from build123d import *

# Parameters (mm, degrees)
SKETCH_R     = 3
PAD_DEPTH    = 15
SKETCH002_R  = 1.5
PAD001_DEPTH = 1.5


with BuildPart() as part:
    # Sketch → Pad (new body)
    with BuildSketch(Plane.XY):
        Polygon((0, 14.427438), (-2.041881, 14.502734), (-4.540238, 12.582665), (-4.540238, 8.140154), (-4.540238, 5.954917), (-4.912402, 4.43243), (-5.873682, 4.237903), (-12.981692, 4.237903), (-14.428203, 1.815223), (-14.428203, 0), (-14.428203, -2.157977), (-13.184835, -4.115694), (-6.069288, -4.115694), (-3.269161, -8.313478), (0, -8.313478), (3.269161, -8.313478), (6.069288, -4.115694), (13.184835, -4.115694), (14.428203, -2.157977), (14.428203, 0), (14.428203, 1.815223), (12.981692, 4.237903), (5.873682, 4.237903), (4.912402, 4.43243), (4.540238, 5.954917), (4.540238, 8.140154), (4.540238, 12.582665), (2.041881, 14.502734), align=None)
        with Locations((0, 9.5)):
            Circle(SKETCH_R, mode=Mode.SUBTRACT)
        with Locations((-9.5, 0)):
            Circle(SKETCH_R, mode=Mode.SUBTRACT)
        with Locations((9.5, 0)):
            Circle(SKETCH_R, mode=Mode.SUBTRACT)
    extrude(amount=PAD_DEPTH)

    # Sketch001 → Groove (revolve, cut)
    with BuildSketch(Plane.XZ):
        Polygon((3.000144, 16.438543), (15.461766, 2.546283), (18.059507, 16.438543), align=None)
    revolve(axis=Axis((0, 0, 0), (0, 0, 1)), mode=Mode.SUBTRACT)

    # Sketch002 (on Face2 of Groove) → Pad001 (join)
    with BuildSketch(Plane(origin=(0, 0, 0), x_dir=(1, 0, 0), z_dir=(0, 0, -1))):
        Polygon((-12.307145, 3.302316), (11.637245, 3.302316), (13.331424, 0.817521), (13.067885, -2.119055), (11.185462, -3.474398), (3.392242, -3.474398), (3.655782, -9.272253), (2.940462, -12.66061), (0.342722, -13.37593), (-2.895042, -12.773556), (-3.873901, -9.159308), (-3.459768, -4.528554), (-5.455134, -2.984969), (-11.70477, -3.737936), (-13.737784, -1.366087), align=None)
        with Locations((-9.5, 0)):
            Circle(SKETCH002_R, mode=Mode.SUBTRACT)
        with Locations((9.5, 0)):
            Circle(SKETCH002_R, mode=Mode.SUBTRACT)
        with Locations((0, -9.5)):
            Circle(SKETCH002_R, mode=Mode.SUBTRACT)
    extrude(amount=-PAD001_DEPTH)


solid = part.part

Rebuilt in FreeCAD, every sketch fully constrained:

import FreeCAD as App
import Part
import Sketcher

V = App.Vector
Q = App.Units.Quantity


def add_polygon(sketch, points):
    """Adds a closed chain of lines whose ends are joined by coincident constraints."""
    first, n = sketch.GeometryCount, len(points)
    for a, b in zip(points, points[1:] + points[:1]):
        sketch.addGeometry(Part.LineSegment(App.Vector(*a, 0), App.Vector(*b, 0)), False)
    for i in range(n):
        sketch.addConstraint(Sketcher.Constraint("Coincident", first + i, 2, first + (i + 1) % n, 1))

doc = App.newDocument("Part")
params = doc.addObject("Spreadsheet::Sheet", "Params")
for row, (alias, value) in enumerate([
    ("sketch1_diameter", "6 mm"),
    ("pad1_length", "15 mm"),
    ("groove_angle", "360 deg"),
    ("sketch3_diameter", "3 mm"),
    ("pad2_length", "1.5 mm"),
], start=1):
    params.set(f"A{row}", alias)
    params.set(f"B{row}", "=" + value)
    params.setAlias(f"B{row}", alias)

body = doc.addObject("PartDesign::Body", "Body")

sketch1 = doc.addObject("Sketcher::SketchObject", "Sketch")
body.addObject(sketch1)
sketch1.AttachmentSupport = (doc.XY_Plane, [""])
sketch1.MapMode = "FlatFace"
add_polygon(sketch1, [(0, 14.4), (-2, 14.5), (-4.5, 12.6), (-4.5, 6), (-4.9, 4.4), (-5.9, 4.2), (-13, 4.2), (-14.4, 1.8), (-14.4, -2.2), (-13.2, -4.1), (-6.1, -4.1), (-3.3, -8.3), (3.3, -8.3), (6.1, -4.1), (13.2, -4.1), (14.4, -2.2), (14.4, 1.8), (13, 4.2), (5.9, 4.2), (4.9, 4.4), (4.5, 6), (4.5, 12.6), (2, 14.5)])
sketch1.addGeometry(Part.Circle(V(-9.5, 0, 0), V(0, 0, 1), 3), False)
sketch1.addGeometry(Part.Circle(V(9.5, 0, 0), V(0, 0, 1), 3), False)
sketch1.addGeometry(Part.Circle(V(0, 9.5, 0), V(0, 0, 1), 3), False)
sketch1.addConstraint([
    Sketcher.Constraint("Vertical", 2),
    Sketcher.Constraint("Horizontal", 5),
    Sketcher.Constraint("Vertical", 7),
    Sketcher.Constraint("Horizontal", 9),
    Sketcher.Constraint("Horizontal", 11),
    Sketcher.Constraint("Horizontal", 13),
    Sketcher.Constraint("Vertical", 15),
    Sketcher.Constraint("Horizontal", 17),
    Sketcher.Constraint("Vertical", 20),
    Sketcher.Constraint("Equal", 23, 24),
    Sketcher.Constraint("Equal", 24, 25),
    Sketcher.Constraint("Symmetric", 23, 3, 24, 3, -1, 1),
    Sketcher.Constraint("Symmetric", 9, 2, 12, 2, -2),
    Sketcher.Constraint("Symmetric", 7, 2, 14, 2, -2),
    Sketcher.Constraint("Symmetric", 5, 2, 16, 2, -2),
    Sketcher.Constraint("Symmetric", 3, 2, 18, 2, -2),
    Sketcher.Constraint("Symmetric", 2, 2, 19, 2, -2),
    Sketcher.Constraint("Symmetric", 0, 2, 21, 2, -2),
    Sketcher.Constraint("PointOnObject", 23, 3, -1),
    Sketcher.Constraint("PointOnObject", 25, 3, -2),
    Sketcher.Constraint("PointOnObject", 22, 2, -2),
    Sketcher.Constraint("Horizontal", 6, 2, 15, 2),
    Sketcher.Constraint("Horizontal", 1, 2, 20, 2),
    Sketcher.Constraint("Equal", 9, 13),
    Sketcher.Constraint("Equal", 5, 17),
    Sketcher.Constraint("Equal", 10, 12),
    Sketcher.Constraint("Diameter", 23, Q("6 mm")),
    Sketcher.Constraint("DistanceX", 23, 3, 24, 3, Q("19 mm")),
    Sketcher.Constraint("DistanceY", -1, 1, 25, 3, Q("9.5 mm")),
    Sketcher.Constraint("Distance", 10, Q("5.045999 mm")),
    Sketcher.Constraint("DistanceY", 7, 2, 7, 1, Q("3.9732 mm")),
    Sketcher.Constraint("DistanceX", 5, 2, 5, 1, Q("7.10801 mm")),
    Sketcher.Constraint("DistanceY", 2, 2, 2, 1, Q("6.627748 mm")),
    Sketcher.Constraint("DistanceX", 6, 2, 3, 2, Q("9.515801 mm")),
    Sketcher.Constraint("DistanceY", 10, 2, 7, 2, Q("6.155501 mm")),
    Sketcher.Constraint("Distance", 0, Q("2.043269 mm")),
    Sketcher.Constraint("Distance", 6, Q("2.821661 mm")),
    Sketcher.Constraint("DistanceX", 9, 1, 9, 2, Q("7.115547 mm")),
    Sketcher.Constraint("DistanceX", 11, 1, 11, 2, Q("6.538322 mm")),
    Sketcher.Constraint("DistanceX", 0, 2, -1, 1, Q("2.041881 mm")),
    Sketcher.Constraint("DistanceX", 1, 2, -1, 1, Q("4.540238 mm")),
    Sketcher.Constraint("DistanceY", -1, 1, 3, 2, Q("4.43243 mm")),
    Sketcher.Constraint("DistanceX", 4, 2, -1, 1, Q("5.873682 mm")),
    Sketcher.Constraint("DistanceX", 9, 2, -1, 1, Q("6.069288 mm")),
    Sketcher.Constraint("DistanceY", 1, 2, 0, 2, Q("1.920069 mm")),
    Sketcher.Constraint("DistanceX", 3, 2, 0, 2, Q("2.870521 mm")),
    Sketcher.Constraint("DistanceY", 4, 2, 1, 2, Q("8.344762 mm")),
    Sketcher.Constraint("DistanceY", 25, 3, 22, 2, Q("4.927438 mm")),
])
sketch1.setExpression("Constraints[49]", "Params.sketch1_diameter")
pad1 = doc.addObject("PartDesign::Pad", "Pad")
body.addObject(pad1)
pad1.Profile = sketch1
pad1.setExpression("Length", "Params.pad1_length")

sketch2 = doc.addObject("Sketcher::SketchObject", "Sketch001")
body.addObject(sketch2)
sketch2.AttachmentSupport = (doc.XZ_Plane, [""])
sketch2.MapMode = "FlatFace"
add_polygon(sketch2, [(3, 16), (15, 3), (18, 16)])
sketch2.addConstraint([
    Sketcher.Constraint("Horizontal", 2),
    Sketcher.Constraint("Distance", 1, Q("14.133052 mm")),
    Sketcher.Constraint("DistanceX", 2, 2, 2, 1, Q("15.059363 mm")),
    Sketcher.Constraint("DistanceX", 0, 2, 1, 2, Q("2.597741 mm")),
    Sketcher.Constraint("DistanceX", -1, 1, 0, 2, Q("15.461766 mm")),
    Sketcher.Constraint("DistanceY", -1, 1, 0, 2, Q("2.546283 mm")),
])
groove = doc.addObject("PartDesign::Groove", "Groove")
body.addObject(groove)
groove.Profile = sketch2
groove.ReferenceAxis = (sketch2, ["V_Axis"])
groove.setExpression("Angle", "Params.groove_angle")

sketch3 = doc.addObject("Sketcher::SketchObject", "Sketch002")
body.addObject(sketch3)
sketch3.AttachmentSupport = (doc.XY_Plane, [""])
sketch3.MapMode = "FlatFace"
add_polygon(sketch3, [(11.6, -3.3), (-12.3, -3.3), (-13.7, 1.4), (-11.7, 3.7), (-5.5, 3), (-3.5, 4.5), (-3.9, 9.2), (-2.9, 12.8), (0.3, 13.4), (2.9, 12.7), (3.7, 9.3), (3.4, 3.5), (11.2, 3.5), (13.1, 2.1), (13.3, -0.8)])
sketch3.addGeometry(Part.Circle(V(0, 9.5, 0), V(0, 0, 1), 1.5), False)
sketch3.addGeometry(Part.Circle(V(9.5, 0, 0), V(0, 0, 1), 1.5), False)
sketch3.addGeometry(Part.Circle(V(-9.5, 0, 0), V(0, 0, 1), 1.5), False)
sketch3.addConstraint([
    Sketcher.Constraint("Horizontal", 0),
    Sketcher.Constraint("Horizontal", 11),
    Sketcher.Constraint("Equal", 15, 16),
    Sketcher.Constraint("Equal", 16, 17),
    Sketcher.Constraint("Symmetric", 16, 3, 17, 3, -1, 1),
    Sketcher.Constraint("PointOnObject", 15, 3, -2),
    Sketcher.Constraint("PointOnObject", 16, 3, -1),
    Sketcher.Constraint("Diameter", 15, Q("3 mm")),
    Sketcher.Constraint("DistanceX", 17, 3, 16, 3, Q("19 mm")),
    Sketcher.Constraint("DistanceY", -1, 1, 15, 3, Q("9.5 mm")),
    Sketcher.Constraint("Angle", 3, Q("-6.869982 deg")),
    Sketcher.Constraint("DistanceX", 8, 2, 11, 2, Q("8.245 mm")),
    Sketcher.Constraint("Distance", 14, Q("3.007399 mm")),
    Sketcher.Constraint("DistanceX", 0, 2, 0, 1, Q("23.94439 mm")),
    Sketcher.Constraint("DistanceX", 11, 1, 11, 2, Q("7.79322 mm")),
    Sketcher.Constraint("DistanceX", 5, 2, -1, 1, Q("3.873901 mm")),
    Sketcher.Constraint("Distance", 2, Q("3.12391 mm")),
    Sketcher.Constraint("Distance", 3, Q("6.294832 mm")),
    Sketcher.Constraint("Distance", 9, Q("3.46304 mm")),
    Sketcher.Constraint("Distance", 10, Q("5.803841 mm")),
    Sketcher.Constraint("DistanceX", 2, 2, -1, 1, Q("11.70477 mm")),
    Sketcher.Constraint("DistanceY", -1, 1, 3, 2, Q("2.984969 mm")),
    Sketcher.Constraint("DistanceX", 4, 2, -1, 1, Q("3.459768 mm")),
    Sketcher.Constraint("DistanceY", -1, 1, 7, 2, Q("13.37593 mm")),
    Sketcher.Constraint("DistanceY", -1, 1, 8, 2, Q("12.66061 mm")),
    Sketcher.Constraint("DistanceX", -1, 1, 9, 2, Q("3.655782 mm")),
    Sketcher.Constraint("DistanceX", -1, 1, 10, 2, Q("3.392242 mm")),
    Sketcher.Constraint("DistanceY", 13, 2, -1, 1, Q("0.817521 mm")),
    Sketcher.Constraint("DistanceX", 1, 2, 0, 2, Q("1.430639 mm")),
    Sketcher.Constraint("DistanceY", 1, 2, 2, 2, Q("2.371849 mm")),
    Sketcher.Constraint("DistanceY", 0, 2, 2, 2, Q("7.040252 mm")),
    Sketcher.Constraint("DistanceY", 3, 2, 5, 2, Q("6.174339 mm")),
    Sketcher.Constraint("DistanceX", 5, 2, 6, 2, Q("0.978859 mm")),
    Sketcher.Constraint("DistanceY", 2, 2, 6, 2, Q("9.03562 mm")),
    Sketcher.Constraint("DistanceX", 4, 2, 7, 2, Q("3.80249 mm")),
    Sketcher.Constraint("DistanceX", 12, 2, 13, 2, Q("0.263539 mm")),
    Sketcher.Constraint("DistanceY", 14, 2, 12, 2, Q("5.421371 mm")),
    Sketcher.Constraint("Distance", 4, Q("2.522725 mm")),
])
sketch3.setExpression("Constraints[22]", "Params.sketch3_diameter")
pad2 = doc.addObject("PartDesign::Pad", "Pad001")
body.addObject(pad2)
pad2.Profile = sketch3
pad2.setExpression("Length", "Params.pad2_length")

doc.recompute()
